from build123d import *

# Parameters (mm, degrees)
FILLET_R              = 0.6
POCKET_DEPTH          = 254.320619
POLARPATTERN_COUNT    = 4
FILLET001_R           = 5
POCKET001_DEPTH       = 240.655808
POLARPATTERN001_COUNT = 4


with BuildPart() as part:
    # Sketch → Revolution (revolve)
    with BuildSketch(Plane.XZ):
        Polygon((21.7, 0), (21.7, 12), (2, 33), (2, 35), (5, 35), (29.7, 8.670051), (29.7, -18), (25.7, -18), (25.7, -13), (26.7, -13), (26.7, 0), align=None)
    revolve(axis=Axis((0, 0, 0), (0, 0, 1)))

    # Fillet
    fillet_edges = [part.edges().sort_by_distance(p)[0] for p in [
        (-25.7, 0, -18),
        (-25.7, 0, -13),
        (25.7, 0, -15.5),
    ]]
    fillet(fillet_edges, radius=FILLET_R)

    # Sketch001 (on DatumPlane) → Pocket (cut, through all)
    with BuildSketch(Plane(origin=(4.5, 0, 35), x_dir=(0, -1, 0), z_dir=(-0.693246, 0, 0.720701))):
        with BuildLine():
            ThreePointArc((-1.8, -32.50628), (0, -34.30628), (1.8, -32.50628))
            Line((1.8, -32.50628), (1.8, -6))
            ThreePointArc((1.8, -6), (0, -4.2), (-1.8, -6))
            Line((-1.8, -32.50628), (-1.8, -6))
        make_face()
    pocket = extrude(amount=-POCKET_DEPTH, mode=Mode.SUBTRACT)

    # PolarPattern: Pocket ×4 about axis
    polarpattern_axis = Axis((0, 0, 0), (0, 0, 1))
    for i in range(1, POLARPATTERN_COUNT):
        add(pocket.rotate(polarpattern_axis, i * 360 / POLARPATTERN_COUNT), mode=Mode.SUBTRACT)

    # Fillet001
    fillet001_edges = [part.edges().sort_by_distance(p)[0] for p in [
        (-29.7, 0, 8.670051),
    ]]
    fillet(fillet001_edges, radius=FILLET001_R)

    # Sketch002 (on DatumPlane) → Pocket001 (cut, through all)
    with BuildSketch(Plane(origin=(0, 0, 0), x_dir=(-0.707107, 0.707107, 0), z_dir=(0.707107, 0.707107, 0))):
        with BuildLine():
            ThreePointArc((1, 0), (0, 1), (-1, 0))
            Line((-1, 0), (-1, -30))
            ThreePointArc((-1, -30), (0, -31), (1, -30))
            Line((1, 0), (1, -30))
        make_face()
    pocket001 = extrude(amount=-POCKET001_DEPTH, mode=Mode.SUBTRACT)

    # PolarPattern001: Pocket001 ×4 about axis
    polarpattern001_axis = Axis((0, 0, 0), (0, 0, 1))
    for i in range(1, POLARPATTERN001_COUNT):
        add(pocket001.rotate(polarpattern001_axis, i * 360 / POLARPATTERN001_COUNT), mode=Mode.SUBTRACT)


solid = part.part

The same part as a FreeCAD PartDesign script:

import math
import FreeCAD as App
import Part
import Sketcher

V = App.Vector
Q = App.Units.Quantity


def edges_at(feature, points):
    """Names of the edges that pass closest to the given points."""
    edges = feature.Shape.Edges
    near = lambda p: min(range(len(edges)), key=lambda i: edges[i].distToShape(Part.Vertex(*p))[0])
    return sorted({f"Edge{near(p) + 1}" for p in points})


def add_polygon(sketch, points):
    """Adds a closed chain of lines whose ends are joined by coincident constraints."""
    first, n = sketch.GeometryCount, len(points)
    for a, b in zip(points, points[1:] + points[:1]):
        sketch.addGeometry(Part.LineSegment(App.Vector(*a, 0), App.Vector(*b, 0)), False)
    for i in range(n):
        sketch.addConstraint(Sketcher.Constraint("Coincident", first + i, 2, first + (i + 1) % n, 1))

doc = App.newDocument("Part")
params = doc.addObject("Spreadsheet::Sheet", "Params")
for row, (alias, value) in enumerate([
    ("sketch1_width", "5 mm"),
    ("sketch1_width2", "1 mm"),
    ("sketch1_width3", "4 mm"),
    ("sketch1_width4", "3 mm"),
    ("sketch1_height", "12 mm"),
    ("revolution_angle", "360 deg"),
    ("fillet_radius", "0.6 mm"),
    ("sketch2_radius", "1.8 mm"),
    ("fillet2_radius", "5 mm"),
    ("sketch3_radius", "1 mm"),
    ("sketch3_height", "30 mm"),
], start=1):
    params.set(f"A{row}", alias)
    params.set(f"B{row}", "=" + value)
    params.setAlias(f"B{row}", alias)

body = doc.addObject("PartDesign::Body", "Body")

# Sketch on XZ plane
sketch1 = body.newObject("Sketcher::SketchObject", "Sketch")
sketch1.AttachmentSupport = (doc.getObject("XZ_Plane"), [""])
sketch1.MapMode = "FlatFace"
add_polygon(sketch1, [(21.7, 12), (21.7, 0), (26.7, 0), (26.7, -13), (25.7, -13), (25.7, -18), (29.7, -18), (29.7, 8.670051), (5, 35), (2, 35), (2, 33)])  # lines 0-10
sketch1.addConstraint([
    Sketcher.Constraint("Vertical", 0),
    Sketcher.Constraint("Horizontal", 1),
    Sketcher.Constraint("Vertical", 2),
    Sketcher.Constraint("Horizontal", 3),
    Sketcher.Constraint("Vertical", 4),
    Sketcher.Constraint("Horizontal", 5),
    Sketcher.Constraint("Vertical", 6),
    Sketcher.Constraint("Horizontal", 8),
    Sketcher.Constraint("Vertical", 9),
    Sketcher.Constraint("PointOnObject", 0, 2, -1),
    Sketcher.Constraint("Parallel", 7, 10),
    Sketcher.Constraint("Equal", 1, 4),
    Sketcher.Constraint("DistanceX", 1, 1, 1, 2, Q("5 mm")),
    Sketcher.Constraint("DistanceX", 3, 2, 3, 1, Q("1 mm")),
    Sketcher.Constraint("DistanceX", 5, 1, 5, 2, Q("4 mm")),
    Sketcher.Constraint("DistanceX", 8, 2, 8, 1, Q("3 mm")),
    Sketcher.Constraint("DistanceY", 0, 2, 0, 1, Q("12 mm")),
    Sketcher.Constraint("DistanceY", 2, 2, 2, 1, Q("13 mm")),
    Sketcher.Constraint("DistanceY", 9, 2, 9, 1, Q("2 mm")),
    Sketcher.Constraint("DistanceX", -1, 1, 7, 2, Q("5 mm")),
    Sketcher.Constraint("DistanceY", -1, 1, 7, 2, Q("35 mm")),
    Sketcher.Constraint("DistanceX", -1, 1, 0, 2, Q("21.7 mm")),
])
sketch1.setExpression("Constraints[23]", "Params.sketch1_width")
sketch1.setExpression("Constraints[24]", "Params.sketch1_width2")
sketch1.setExpression("Constraints[25]", "Params.sketch1_width3")
sketch1.setExpression("Constraints[26]", "Params.sketch1_width4")
sketch1.setExpression("Constraints[27]", "Params.sketch1_height")
revolution = body.newObject("PartDesign::Revolution", "Revolution")
revolution.Profile = sketch1
revolution.ReferenceAxis = (sketch1, ["V_Axis"])
revolution.setExpression("Angle", "Params.revolution_angle")
doc.recompute()

fillet = body.newObject("PartDesign::Fillet", "Fillet")
fillet.Base = (revolution, edges_at(revolution, [(-25.7, 0, -18), (-25.7, 0, -13), (25.7, 0, -15.5)]))
fillet.setExpression("Radius", "Params.fillet_radius")

# Sketch on an angled plane
sketch2 = body.newObject("Sketcher::SketchObject", "Sketch001")
sketch2.Placement = App.Placement(V(4.5, 0, 35), App.Rotation(V(0, -1, 0), V(0.720701019, 0, 0.693246018), V(-0.693246018, 0, 0.720701019), "ZXY"))
sketch2.addGeometry([
    Part.ArcOfCircle(Part.Circle(V(0, -32.50628, 0), V(0, 0, 1), 1.8), math.radians(180), math.radians(360)),
    Part.LineSegment(V(1.8, -32.50628, 0), V(1.8, -6, 0)),
    Part.ArcOfCircle(Part.Circle(V(0, -6, 0), V(0, 0, 1), 1.8), math.radians(0), math.radians(180)),
    Part.LineSegment(V(-1.8, -6, 0), V(-1.8, -32.50628, 0)),
], False)
sketch2.addConstraint([
    Sketcher.Constraint("Tangent", 0, 2, 1, 1),
    Sketcher.Constraint("Tangent", 1, 2, 2, 1),
    Sketcher.Constraint("Tangent", 2, 2, 3, 1),
    Sketcher.Constraint("Tangent", 3, 2, 0, 1),
    Sketcher.Constraint("Vertical", 1),
    Sketcher.Constraint("Vertical", 3),
    Sketcher.Constraint("PointOnObject", 0, 3, -2),
    Sketcher.Constraint("Radius", 0, Q("1.8 mm")),
    Sketcher.Constraint("DistanceY", 2, 3, -1, 1, Q("6 mm")),
    Sketcher.Constraint("DistanceY", 1, 1, 1, 2, Q("26.50628 mm")),
])
sketch2.setExpression("Constraints[7]", "Params.sketch2_radius")
pocket1 = body.newObject("PartDesign::Pocket", "Pocket")
pocket1.Profile = sketch2
pocket1.Type = "ThroughAll"
doc.recompute()

polarpattern = body.newObject("PartDesign::PolarPattern", "PolarPattern")
polarpattern.Originals = [pocket1]
polarpattern.Axis = (doc.getObject("Z_Axis"), [""])
polarpattern.Angle = 360
polarpattern.Occurrences = 4
body.Tip = polarpattern
doc.recompute()

fillet2 = body.newObject("PartDesign::Fillet", "Fillet001")
fillet2.Base = (polarpattern, edges_at(polarpattern, [(-29.7, 0, 8.67)]))
fillet2.setExpression("Radius", "Params.fillet2_radius")

# Sketch on an angled plane
sketch3 = body.newObject("Sketcher::SketchObject", "Sketch002")
sketch3.Placement = App.Placement(V(0, 0, 0), App.Rotation(V(-0.707106781, 0.707106781, 0), V(0, 0, 0.999999999), V(0.707106781, 0.707106781, 0), "ZXY"))
sketch3.addGeometry([
    Part.ArcOfCircle(Part.Circle(V(0, 0, 0), V(0, 0, 1), 1), math.radians(0), math.radians(180)),
    Part.LineSegment(V(-1, 0, 0), V(-1, -30, 0)),
    Part.ArcOfCircle(Part.Circle(V(0, -30, 0), V(0, 0, 1), 1), math.radians(180), math.radians(360)),
    Part.LineSegment(V(1, -30, 0), V(1, 0, 0)),
], False)
sketch3.addConstraint([
    Sketcher.Constraint("Tangent", 0, 2, 1, 1),
    Sketcher.Constraint("Tangent", 1, 2, 2, 1),
    Sketcher.Constraint("Tangent", 2, 2, 3, 1),
    Sketcher.Constraint("Tangent", 3, 2, 0, 1),
    Sketcher.Constraint("Vertical", 1),
    Sketcher.Constraint("Vertical", 3),
    Sketcher.Constraint("Coincident", 0, 3, -1, 1),
    Sketcher.Constraint("Radius", 0, Q("1 mm")),
    Sketcher.Constraint("DistanceY", 1, 2, 1, 1, Q("30 mm")),
])
sketch3.setExpression("Constraints[7]", "Params.sketch3_radius")
sketch3.setExpression("Constraints[8]", "Params.sketch3_height")
pocket2 = body.newObject("PartDesign::Pocket", "Pocket001")
pocket2.Profile = sketch3
pocket2.Type = "ThroughAll"
doc.recompute()

polarpattern2 = body.newObject("PartDesign::PolarPattern", "PolarPattern001")
polarpattern2.Originals = [pocket2]
polarpattern2.Axis = (doc.getObject("Z_Axis"), [""])
polarpattern2.Angle = 360
polarpattern2.Occurrences = 4
body.Tip = polarpattern2

doc.recompute()
